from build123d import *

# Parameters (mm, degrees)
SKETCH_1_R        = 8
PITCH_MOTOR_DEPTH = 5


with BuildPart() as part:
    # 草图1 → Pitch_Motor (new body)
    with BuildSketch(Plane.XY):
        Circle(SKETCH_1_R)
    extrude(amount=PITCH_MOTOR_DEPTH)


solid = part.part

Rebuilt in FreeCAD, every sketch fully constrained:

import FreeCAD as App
import Part
import Sketcher

V = App.Vector

doc = App.newDocument("Part")
body = doc.addObject("PartDesign::Body", "Body")

# Sketch on XY plane
sketch1 = doc.addObject("Sketcher::SketchObject", "Sketch")
body.addObject(sketch1)
sketch1.AttachmentSupport = (doc.XY_Plane, [""])
sketch1.MapMode = "FlatFace"
sketch1.addGeometry(Part.Circle(V(0, 0, 0), V(0, 0, 1), 8), False)
sketch1.addConstraint([
    Sketcher.Constraint("Coincident", 0, 3, -1, 1),
    Sketcher.Constraint("Diameter", 0, 16.0),
])
pad1 = doc.addObject("PartDesign::Pad", "Pad")
body.addObject(pad1)
pad1.Profile = sketch1
pad1.Length = 5

doc.recompute()
